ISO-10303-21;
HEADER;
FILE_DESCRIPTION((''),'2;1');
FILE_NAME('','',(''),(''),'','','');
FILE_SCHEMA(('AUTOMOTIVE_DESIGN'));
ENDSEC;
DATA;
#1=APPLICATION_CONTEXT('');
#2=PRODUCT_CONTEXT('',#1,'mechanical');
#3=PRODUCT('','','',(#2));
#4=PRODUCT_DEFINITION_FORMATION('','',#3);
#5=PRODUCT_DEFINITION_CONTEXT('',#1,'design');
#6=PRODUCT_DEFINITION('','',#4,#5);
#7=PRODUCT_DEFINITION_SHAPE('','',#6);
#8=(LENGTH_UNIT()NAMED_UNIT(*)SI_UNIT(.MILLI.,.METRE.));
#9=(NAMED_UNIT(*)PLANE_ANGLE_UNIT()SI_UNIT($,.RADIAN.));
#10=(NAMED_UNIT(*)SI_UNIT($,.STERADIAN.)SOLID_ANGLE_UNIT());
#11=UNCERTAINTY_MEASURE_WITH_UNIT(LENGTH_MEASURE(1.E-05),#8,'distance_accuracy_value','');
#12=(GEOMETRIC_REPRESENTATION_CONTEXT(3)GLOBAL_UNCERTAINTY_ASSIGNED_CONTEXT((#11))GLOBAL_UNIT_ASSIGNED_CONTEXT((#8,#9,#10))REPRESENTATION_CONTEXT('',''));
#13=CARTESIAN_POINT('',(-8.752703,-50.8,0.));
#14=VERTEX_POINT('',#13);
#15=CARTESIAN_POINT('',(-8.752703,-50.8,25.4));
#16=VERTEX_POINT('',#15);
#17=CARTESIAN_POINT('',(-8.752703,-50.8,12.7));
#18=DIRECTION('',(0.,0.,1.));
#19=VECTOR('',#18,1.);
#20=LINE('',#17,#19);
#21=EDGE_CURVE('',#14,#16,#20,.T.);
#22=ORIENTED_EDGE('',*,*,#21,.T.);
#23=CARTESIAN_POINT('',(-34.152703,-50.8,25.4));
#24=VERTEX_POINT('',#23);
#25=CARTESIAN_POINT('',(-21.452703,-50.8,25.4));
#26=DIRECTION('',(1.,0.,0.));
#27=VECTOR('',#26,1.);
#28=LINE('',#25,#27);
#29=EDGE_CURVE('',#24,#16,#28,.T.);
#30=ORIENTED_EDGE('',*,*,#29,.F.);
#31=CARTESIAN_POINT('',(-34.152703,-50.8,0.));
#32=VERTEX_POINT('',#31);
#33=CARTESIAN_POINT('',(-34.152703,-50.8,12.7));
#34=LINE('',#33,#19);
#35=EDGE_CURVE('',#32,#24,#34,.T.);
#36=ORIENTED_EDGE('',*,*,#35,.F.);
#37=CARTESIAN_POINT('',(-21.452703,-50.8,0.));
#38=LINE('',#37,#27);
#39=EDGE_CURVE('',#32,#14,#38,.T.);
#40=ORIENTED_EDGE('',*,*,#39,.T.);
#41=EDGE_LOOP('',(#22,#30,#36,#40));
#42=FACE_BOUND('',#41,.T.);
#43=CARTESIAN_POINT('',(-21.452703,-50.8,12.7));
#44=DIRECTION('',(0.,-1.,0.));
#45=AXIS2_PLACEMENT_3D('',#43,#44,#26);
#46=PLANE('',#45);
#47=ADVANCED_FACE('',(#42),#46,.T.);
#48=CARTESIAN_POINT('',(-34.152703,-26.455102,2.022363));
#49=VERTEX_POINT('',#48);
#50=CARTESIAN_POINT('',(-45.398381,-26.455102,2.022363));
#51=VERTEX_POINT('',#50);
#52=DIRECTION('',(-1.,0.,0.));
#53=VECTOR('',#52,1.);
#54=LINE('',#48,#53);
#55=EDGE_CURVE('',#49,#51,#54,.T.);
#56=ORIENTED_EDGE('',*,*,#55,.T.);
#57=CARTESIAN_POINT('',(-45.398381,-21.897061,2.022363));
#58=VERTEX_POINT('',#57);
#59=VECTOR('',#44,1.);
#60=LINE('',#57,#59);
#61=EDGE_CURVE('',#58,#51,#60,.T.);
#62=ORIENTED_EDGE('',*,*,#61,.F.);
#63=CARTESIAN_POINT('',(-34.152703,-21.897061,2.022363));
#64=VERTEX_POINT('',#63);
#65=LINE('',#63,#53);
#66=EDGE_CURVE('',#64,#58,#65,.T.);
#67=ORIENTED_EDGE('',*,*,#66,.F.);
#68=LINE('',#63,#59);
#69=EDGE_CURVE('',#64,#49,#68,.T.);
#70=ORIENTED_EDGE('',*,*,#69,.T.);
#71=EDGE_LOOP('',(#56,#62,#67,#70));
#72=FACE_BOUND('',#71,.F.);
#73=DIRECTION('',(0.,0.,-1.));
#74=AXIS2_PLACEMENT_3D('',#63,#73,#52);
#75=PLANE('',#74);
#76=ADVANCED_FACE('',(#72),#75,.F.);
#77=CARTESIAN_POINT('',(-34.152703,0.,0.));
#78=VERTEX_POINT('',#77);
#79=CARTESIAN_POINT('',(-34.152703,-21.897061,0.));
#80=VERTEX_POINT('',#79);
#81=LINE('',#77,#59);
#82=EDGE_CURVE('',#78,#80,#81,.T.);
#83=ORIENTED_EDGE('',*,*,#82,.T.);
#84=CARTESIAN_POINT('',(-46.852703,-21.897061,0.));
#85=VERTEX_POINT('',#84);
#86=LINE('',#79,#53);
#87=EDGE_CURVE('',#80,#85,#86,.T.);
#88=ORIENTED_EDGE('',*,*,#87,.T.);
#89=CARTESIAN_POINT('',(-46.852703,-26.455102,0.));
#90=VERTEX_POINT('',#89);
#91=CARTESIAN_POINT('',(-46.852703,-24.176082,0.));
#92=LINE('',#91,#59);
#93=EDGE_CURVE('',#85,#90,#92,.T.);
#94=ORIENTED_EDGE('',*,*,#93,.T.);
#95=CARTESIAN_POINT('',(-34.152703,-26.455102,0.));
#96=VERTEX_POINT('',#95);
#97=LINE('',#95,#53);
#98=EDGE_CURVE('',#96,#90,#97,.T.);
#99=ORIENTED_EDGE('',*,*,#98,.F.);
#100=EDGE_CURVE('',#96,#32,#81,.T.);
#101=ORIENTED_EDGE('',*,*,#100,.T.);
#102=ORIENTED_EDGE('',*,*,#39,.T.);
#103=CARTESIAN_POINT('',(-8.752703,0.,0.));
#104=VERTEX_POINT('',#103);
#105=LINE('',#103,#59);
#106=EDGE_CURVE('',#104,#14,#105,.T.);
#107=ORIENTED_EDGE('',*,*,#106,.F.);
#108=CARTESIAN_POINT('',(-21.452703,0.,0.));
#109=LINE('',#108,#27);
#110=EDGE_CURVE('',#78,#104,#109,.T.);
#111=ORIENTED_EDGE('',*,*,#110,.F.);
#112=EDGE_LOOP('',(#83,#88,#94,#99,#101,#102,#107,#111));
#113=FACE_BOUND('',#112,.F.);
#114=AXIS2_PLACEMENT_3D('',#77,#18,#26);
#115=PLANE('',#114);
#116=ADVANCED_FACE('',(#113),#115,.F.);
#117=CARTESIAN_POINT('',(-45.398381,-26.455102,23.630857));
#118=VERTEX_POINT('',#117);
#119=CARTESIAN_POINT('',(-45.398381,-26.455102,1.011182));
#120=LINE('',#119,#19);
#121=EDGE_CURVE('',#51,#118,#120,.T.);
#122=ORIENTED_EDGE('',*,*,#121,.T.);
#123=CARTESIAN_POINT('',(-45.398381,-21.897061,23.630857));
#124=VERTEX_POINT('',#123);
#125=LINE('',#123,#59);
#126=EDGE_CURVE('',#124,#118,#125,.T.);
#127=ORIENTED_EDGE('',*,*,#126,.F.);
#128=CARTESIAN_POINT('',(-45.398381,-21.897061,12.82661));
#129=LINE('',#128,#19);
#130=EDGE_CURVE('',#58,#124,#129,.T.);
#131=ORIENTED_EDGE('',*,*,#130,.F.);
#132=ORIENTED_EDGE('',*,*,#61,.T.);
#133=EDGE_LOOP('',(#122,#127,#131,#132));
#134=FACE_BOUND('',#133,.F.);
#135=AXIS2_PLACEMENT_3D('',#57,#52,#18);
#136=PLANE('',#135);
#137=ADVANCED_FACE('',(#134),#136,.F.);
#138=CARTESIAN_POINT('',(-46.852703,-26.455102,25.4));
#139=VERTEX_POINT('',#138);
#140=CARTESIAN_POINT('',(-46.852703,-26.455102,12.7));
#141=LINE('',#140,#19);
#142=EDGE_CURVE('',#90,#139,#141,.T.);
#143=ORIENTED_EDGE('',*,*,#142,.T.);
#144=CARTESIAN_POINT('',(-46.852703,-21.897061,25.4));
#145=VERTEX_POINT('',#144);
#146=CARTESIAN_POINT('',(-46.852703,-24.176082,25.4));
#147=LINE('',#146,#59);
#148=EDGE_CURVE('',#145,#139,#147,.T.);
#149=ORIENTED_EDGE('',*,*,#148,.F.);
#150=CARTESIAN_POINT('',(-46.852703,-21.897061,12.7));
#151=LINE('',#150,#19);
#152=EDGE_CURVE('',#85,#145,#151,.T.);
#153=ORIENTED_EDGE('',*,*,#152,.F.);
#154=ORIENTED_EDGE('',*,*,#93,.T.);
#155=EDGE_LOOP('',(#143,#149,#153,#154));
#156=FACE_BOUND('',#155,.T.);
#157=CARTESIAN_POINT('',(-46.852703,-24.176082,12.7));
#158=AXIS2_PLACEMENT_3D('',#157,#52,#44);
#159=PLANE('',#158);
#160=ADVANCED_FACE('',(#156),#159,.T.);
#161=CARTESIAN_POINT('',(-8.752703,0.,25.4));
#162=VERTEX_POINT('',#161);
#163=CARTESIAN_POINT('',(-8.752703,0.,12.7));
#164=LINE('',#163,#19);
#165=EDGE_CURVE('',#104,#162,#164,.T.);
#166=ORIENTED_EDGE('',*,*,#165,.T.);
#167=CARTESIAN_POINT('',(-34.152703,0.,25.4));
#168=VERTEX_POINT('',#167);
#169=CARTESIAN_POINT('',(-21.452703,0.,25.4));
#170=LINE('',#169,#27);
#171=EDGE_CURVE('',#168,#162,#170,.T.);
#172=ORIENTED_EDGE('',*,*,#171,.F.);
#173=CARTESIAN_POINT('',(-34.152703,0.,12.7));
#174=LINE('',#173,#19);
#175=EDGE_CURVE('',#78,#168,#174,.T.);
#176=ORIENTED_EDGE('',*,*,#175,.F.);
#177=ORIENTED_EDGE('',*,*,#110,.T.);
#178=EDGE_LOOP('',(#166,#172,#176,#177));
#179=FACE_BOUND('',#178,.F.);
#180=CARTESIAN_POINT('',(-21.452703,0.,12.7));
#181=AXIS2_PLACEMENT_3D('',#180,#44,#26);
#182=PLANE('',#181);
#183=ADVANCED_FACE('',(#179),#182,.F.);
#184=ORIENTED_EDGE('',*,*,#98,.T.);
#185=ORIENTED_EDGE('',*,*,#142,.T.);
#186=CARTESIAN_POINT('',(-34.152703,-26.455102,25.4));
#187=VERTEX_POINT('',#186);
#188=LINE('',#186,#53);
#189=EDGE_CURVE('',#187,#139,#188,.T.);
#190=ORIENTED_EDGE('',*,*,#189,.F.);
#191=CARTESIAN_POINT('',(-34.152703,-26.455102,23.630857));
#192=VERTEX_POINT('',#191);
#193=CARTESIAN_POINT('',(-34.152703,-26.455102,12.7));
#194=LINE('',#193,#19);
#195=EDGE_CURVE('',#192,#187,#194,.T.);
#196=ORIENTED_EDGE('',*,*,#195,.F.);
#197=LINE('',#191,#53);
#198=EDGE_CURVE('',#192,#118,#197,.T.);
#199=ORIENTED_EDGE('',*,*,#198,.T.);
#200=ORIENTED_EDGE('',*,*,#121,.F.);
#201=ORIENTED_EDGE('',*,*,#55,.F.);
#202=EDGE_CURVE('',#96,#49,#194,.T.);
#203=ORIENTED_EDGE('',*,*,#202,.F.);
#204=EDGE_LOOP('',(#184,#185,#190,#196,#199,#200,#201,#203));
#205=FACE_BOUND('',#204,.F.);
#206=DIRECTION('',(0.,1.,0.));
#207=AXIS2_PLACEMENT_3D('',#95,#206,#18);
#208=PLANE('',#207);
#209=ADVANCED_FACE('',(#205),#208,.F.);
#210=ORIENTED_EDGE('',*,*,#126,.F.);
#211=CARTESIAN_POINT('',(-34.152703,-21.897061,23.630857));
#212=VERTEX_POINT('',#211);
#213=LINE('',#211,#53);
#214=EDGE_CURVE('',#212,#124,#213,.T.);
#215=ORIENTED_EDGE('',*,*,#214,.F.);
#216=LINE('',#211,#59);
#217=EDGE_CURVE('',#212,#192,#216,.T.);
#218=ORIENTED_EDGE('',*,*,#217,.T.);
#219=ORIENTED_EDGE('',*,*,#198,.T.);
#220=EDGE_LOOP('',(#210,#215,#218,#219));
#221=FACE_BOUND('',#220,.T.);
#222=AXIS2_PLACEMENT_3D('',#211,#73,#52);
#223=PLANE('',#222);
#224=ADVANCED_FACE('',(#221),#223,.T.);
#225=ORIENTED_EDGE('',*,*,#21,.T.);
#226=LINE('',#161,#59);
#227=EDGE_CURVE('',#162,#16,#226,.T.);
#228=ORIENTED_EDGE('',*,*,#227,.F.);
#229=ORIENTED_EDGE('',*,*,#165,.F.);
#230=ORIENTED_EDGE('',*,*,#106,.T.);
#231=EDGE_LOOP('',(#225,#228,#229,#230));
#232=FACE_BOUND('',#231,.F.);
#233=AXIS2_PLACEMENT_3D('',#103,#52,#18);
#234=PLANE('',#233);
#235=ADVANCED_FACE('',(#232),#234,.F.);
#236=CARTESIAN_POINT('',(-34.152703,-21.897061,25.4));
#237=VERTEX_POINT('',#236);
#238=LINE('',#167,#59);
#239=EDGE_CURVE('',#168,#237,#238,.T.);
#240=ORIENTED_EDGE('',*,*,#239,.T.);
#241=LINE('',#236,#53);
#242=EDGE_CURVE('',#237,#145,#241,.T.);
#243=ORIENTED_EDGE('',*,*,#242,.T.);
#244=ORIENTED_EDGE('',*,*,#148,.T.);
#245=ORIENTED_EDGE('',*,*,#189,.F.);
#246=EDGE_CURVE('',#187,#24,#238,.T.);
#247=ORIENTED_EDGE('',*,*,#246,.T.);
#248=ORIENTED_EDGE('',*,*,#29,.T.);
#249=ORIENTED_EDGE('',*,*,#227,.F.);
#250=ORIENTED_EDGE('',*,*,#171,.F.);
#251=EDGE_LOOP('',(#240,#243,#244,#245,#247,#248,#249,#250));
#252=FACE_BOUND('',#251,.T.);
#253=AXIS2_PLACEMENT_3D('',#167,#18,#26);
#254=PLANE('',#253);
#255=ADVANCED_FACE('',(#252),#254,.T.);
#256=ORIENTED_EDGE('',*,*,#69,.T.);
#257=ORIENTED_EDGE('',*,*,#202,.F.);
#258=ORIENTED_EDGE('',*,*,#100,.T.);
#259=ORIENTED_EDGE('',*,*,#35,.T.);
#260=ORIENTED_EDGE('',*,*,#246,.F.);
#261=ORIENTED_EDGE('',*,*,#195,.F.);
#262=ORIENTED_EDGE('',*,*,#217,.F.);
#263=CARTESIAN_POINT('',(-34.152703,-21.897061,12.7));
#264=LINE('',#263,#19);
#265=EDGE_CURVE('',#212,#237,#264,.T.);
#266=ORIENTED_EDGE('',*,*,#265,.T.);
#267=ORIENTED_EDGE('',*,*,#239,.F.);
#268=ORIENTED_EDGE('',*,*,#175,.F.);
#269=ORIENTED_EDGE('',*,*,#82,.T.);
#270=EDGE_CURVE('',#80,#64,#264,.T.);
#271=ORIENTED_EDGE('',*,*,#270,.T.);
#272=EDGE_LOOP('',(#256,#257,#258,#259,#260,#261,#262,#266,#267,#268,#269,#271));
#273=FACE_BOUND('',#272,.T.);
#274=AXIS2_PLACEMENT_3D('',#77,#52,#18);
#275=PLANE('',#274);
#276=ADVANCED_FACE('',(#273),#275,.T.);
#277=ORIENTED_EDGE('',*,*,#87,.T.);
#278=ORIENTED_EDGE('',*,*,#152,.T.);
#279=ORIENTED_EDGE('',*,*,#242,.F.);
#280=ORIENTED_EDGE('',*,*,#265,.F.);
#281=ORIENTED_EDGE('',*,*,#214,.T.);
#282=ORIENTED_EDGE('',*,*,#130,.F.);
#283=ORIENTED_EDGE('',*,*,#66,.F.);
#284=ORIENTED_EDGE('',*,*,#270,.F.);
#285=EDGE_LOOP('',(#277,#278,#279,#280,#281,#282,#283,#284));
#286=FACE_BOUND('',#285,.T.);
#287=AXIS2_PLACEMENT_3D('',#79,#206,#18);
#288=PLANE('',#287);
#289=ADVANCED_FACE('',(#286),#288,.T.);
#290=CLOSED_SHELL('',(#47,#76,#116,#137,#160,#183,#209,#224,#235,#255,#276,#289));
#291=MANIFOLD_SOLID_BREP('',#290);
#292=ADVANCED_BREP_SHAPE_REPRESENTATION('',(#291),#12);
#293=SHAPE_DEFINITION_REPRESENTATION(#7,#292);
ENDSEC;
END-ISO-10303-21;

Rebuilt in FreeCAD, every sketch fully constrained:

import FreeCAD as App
import Part
import Sketcher

V = App.Vector
Q = App.Units.Quantity


def add_polygon(sketch, points):
    """Adds a closed chain of lines whose ends are joined by coincident constraints."""
    first, n = sketch.GeometryCount, len(points)
    for a, b in zip(points, points[1:] + points[:1]):
        sketch.addGeometry(Part.LineSegment(App.Vector(*a, 0), App.Vector(*b, 0)), False)
    for i in range(n):
        sketch.addConstraint(Sketcher.Constraint("Coincident", first + i, 2, first + (i + 1) % n, 1))

doc = App.newDocument("Part")
body = doc.addObject("PartDesign::Body", "Body")

# Sketch on XZ plane
sketch1 = body.newObject("Sketcher::SketchObject", "Sketch")
sketch1.AttachmentSupport = (doc.getObject("XZ_Plane"), [""])
sketch1.MapMode = "FlatFace"
add_polygon(sketch1, [(-34, 25), (-34, 0), (-9, 0), (-9, 25)])  # lines 0-3
sketch1.addConstraint([
    Sketcher.Constraint("Vertical", 0),
    Sketcher.Constraint("Horizontal", 1),
    Sketcher.Constraint("Vertical", 2),
    Sketcher.Constraint("Horizontal", 3),
    Sketcher.Constraint("PointOnObject", 0, 2, -1),
    Sketcher.Constraint("Equal", 3, 0),
    Sketcher.Constraint("DistanceX", 1, 1, 1, 2, Q("1 in")),
    Sketcher.Constraint("DistanceX", 0, 2, -1, 1, Q("34.152703 mm")),
])
pad1 = body.newObject("PartDesign::Pad", "Pad")
pad1.Profile = sketch1
pad1.Length = Q("2 in")

# Sketch on YZ plane
sketch2 = body.newObject("Sketcher::SketchObject", "Sketch001")
sketch2.AttachmentSupport = (doc.getObject("YZ_Plane"), [""])
sketch2.MapMode = "FlatFace"
sketch2.AttachmentOffset = App.Placement(V(0, 0, -34.152703), App.Rotation())
add_polygon(sketch2, [(-21.9, 25.4), (-21.9, 0), (-26.5, 0), (-26.5, 25.4)])  # lines 0-3
sketch2.addConstraint([
    Sketcher.Constraint("Vertical", 0),
    Sketcher.Constraint("Horizontal", 1),
    Sketcher.Constraint("Vertical", 2),
    Sketcher.Constraint("Horizontal", 3),
    Sketcher.Constraint("PointOnObject", 0, 2, -1),
    Sketcher.Constraint("DistanceY", 0, 2, 0, 1, Q("1 in")),
    Sketcher.Constraint("DistanceX", 1, 2, 1, 1, Q("4.558041 mm")),
    Sketcher.Constraint("DistanceX", 0, 2, -1, 1, Q("21.897061 mm")),
])
pad2 = body.newObject("PartDesign::Pad", "Pad001")
pad2.Profile = sketch2
pad2.Length = Q("0.5 in")
pad2.Reversed = True

# Sketch on XZ plane
sketch3 = body.newObject("Sketcher::SketchObject", "Sketch002")
sketch3.AttachmentSupport = (doc.getObject("XZ_Plane"), [""])
sketch3.MapMode = "FlatFace"
sketch3.AttachmentOffset = App.Placement(V(0, 0, 21.897061), App.Rotation())
add_polygon(sketch3, [(-34, 24), (-34, 2), (-45, 2), (-45, 24)])  # lines 0-3
sketch3.addConstraint([
    Sketcher.Constraint("Vertical", 0),
    Sketcher.Constraint("Horizontal", 1),
    Sketcher.Constraint("Vertical", 2),
    Sketcher.Constraint("Horizontal", 3),
    Sketcher.Constraint("DistanceX", 1, 2, 1, 1, Q("11.245678 mm")),
    Sketcher.Constraint("DistanceY", 0, 2, 0, 1, Q("21.608493 mm")),
    Sketcher.Constraint("DistanceX", 1, 2, -1, 1, Q("45.398381 mm")),
    Sketcher.Constraint("DistanceY", -1, 1, 0, 2, Q("2.022363 mm")),
])
pocket1 = body.newObject("PartDesign::Pocket", "Pocket")
pocket1.Profile = sketch3
pocket1.Length = Q("1 in")
pocket1.Reversed = True

doc.recompute()
